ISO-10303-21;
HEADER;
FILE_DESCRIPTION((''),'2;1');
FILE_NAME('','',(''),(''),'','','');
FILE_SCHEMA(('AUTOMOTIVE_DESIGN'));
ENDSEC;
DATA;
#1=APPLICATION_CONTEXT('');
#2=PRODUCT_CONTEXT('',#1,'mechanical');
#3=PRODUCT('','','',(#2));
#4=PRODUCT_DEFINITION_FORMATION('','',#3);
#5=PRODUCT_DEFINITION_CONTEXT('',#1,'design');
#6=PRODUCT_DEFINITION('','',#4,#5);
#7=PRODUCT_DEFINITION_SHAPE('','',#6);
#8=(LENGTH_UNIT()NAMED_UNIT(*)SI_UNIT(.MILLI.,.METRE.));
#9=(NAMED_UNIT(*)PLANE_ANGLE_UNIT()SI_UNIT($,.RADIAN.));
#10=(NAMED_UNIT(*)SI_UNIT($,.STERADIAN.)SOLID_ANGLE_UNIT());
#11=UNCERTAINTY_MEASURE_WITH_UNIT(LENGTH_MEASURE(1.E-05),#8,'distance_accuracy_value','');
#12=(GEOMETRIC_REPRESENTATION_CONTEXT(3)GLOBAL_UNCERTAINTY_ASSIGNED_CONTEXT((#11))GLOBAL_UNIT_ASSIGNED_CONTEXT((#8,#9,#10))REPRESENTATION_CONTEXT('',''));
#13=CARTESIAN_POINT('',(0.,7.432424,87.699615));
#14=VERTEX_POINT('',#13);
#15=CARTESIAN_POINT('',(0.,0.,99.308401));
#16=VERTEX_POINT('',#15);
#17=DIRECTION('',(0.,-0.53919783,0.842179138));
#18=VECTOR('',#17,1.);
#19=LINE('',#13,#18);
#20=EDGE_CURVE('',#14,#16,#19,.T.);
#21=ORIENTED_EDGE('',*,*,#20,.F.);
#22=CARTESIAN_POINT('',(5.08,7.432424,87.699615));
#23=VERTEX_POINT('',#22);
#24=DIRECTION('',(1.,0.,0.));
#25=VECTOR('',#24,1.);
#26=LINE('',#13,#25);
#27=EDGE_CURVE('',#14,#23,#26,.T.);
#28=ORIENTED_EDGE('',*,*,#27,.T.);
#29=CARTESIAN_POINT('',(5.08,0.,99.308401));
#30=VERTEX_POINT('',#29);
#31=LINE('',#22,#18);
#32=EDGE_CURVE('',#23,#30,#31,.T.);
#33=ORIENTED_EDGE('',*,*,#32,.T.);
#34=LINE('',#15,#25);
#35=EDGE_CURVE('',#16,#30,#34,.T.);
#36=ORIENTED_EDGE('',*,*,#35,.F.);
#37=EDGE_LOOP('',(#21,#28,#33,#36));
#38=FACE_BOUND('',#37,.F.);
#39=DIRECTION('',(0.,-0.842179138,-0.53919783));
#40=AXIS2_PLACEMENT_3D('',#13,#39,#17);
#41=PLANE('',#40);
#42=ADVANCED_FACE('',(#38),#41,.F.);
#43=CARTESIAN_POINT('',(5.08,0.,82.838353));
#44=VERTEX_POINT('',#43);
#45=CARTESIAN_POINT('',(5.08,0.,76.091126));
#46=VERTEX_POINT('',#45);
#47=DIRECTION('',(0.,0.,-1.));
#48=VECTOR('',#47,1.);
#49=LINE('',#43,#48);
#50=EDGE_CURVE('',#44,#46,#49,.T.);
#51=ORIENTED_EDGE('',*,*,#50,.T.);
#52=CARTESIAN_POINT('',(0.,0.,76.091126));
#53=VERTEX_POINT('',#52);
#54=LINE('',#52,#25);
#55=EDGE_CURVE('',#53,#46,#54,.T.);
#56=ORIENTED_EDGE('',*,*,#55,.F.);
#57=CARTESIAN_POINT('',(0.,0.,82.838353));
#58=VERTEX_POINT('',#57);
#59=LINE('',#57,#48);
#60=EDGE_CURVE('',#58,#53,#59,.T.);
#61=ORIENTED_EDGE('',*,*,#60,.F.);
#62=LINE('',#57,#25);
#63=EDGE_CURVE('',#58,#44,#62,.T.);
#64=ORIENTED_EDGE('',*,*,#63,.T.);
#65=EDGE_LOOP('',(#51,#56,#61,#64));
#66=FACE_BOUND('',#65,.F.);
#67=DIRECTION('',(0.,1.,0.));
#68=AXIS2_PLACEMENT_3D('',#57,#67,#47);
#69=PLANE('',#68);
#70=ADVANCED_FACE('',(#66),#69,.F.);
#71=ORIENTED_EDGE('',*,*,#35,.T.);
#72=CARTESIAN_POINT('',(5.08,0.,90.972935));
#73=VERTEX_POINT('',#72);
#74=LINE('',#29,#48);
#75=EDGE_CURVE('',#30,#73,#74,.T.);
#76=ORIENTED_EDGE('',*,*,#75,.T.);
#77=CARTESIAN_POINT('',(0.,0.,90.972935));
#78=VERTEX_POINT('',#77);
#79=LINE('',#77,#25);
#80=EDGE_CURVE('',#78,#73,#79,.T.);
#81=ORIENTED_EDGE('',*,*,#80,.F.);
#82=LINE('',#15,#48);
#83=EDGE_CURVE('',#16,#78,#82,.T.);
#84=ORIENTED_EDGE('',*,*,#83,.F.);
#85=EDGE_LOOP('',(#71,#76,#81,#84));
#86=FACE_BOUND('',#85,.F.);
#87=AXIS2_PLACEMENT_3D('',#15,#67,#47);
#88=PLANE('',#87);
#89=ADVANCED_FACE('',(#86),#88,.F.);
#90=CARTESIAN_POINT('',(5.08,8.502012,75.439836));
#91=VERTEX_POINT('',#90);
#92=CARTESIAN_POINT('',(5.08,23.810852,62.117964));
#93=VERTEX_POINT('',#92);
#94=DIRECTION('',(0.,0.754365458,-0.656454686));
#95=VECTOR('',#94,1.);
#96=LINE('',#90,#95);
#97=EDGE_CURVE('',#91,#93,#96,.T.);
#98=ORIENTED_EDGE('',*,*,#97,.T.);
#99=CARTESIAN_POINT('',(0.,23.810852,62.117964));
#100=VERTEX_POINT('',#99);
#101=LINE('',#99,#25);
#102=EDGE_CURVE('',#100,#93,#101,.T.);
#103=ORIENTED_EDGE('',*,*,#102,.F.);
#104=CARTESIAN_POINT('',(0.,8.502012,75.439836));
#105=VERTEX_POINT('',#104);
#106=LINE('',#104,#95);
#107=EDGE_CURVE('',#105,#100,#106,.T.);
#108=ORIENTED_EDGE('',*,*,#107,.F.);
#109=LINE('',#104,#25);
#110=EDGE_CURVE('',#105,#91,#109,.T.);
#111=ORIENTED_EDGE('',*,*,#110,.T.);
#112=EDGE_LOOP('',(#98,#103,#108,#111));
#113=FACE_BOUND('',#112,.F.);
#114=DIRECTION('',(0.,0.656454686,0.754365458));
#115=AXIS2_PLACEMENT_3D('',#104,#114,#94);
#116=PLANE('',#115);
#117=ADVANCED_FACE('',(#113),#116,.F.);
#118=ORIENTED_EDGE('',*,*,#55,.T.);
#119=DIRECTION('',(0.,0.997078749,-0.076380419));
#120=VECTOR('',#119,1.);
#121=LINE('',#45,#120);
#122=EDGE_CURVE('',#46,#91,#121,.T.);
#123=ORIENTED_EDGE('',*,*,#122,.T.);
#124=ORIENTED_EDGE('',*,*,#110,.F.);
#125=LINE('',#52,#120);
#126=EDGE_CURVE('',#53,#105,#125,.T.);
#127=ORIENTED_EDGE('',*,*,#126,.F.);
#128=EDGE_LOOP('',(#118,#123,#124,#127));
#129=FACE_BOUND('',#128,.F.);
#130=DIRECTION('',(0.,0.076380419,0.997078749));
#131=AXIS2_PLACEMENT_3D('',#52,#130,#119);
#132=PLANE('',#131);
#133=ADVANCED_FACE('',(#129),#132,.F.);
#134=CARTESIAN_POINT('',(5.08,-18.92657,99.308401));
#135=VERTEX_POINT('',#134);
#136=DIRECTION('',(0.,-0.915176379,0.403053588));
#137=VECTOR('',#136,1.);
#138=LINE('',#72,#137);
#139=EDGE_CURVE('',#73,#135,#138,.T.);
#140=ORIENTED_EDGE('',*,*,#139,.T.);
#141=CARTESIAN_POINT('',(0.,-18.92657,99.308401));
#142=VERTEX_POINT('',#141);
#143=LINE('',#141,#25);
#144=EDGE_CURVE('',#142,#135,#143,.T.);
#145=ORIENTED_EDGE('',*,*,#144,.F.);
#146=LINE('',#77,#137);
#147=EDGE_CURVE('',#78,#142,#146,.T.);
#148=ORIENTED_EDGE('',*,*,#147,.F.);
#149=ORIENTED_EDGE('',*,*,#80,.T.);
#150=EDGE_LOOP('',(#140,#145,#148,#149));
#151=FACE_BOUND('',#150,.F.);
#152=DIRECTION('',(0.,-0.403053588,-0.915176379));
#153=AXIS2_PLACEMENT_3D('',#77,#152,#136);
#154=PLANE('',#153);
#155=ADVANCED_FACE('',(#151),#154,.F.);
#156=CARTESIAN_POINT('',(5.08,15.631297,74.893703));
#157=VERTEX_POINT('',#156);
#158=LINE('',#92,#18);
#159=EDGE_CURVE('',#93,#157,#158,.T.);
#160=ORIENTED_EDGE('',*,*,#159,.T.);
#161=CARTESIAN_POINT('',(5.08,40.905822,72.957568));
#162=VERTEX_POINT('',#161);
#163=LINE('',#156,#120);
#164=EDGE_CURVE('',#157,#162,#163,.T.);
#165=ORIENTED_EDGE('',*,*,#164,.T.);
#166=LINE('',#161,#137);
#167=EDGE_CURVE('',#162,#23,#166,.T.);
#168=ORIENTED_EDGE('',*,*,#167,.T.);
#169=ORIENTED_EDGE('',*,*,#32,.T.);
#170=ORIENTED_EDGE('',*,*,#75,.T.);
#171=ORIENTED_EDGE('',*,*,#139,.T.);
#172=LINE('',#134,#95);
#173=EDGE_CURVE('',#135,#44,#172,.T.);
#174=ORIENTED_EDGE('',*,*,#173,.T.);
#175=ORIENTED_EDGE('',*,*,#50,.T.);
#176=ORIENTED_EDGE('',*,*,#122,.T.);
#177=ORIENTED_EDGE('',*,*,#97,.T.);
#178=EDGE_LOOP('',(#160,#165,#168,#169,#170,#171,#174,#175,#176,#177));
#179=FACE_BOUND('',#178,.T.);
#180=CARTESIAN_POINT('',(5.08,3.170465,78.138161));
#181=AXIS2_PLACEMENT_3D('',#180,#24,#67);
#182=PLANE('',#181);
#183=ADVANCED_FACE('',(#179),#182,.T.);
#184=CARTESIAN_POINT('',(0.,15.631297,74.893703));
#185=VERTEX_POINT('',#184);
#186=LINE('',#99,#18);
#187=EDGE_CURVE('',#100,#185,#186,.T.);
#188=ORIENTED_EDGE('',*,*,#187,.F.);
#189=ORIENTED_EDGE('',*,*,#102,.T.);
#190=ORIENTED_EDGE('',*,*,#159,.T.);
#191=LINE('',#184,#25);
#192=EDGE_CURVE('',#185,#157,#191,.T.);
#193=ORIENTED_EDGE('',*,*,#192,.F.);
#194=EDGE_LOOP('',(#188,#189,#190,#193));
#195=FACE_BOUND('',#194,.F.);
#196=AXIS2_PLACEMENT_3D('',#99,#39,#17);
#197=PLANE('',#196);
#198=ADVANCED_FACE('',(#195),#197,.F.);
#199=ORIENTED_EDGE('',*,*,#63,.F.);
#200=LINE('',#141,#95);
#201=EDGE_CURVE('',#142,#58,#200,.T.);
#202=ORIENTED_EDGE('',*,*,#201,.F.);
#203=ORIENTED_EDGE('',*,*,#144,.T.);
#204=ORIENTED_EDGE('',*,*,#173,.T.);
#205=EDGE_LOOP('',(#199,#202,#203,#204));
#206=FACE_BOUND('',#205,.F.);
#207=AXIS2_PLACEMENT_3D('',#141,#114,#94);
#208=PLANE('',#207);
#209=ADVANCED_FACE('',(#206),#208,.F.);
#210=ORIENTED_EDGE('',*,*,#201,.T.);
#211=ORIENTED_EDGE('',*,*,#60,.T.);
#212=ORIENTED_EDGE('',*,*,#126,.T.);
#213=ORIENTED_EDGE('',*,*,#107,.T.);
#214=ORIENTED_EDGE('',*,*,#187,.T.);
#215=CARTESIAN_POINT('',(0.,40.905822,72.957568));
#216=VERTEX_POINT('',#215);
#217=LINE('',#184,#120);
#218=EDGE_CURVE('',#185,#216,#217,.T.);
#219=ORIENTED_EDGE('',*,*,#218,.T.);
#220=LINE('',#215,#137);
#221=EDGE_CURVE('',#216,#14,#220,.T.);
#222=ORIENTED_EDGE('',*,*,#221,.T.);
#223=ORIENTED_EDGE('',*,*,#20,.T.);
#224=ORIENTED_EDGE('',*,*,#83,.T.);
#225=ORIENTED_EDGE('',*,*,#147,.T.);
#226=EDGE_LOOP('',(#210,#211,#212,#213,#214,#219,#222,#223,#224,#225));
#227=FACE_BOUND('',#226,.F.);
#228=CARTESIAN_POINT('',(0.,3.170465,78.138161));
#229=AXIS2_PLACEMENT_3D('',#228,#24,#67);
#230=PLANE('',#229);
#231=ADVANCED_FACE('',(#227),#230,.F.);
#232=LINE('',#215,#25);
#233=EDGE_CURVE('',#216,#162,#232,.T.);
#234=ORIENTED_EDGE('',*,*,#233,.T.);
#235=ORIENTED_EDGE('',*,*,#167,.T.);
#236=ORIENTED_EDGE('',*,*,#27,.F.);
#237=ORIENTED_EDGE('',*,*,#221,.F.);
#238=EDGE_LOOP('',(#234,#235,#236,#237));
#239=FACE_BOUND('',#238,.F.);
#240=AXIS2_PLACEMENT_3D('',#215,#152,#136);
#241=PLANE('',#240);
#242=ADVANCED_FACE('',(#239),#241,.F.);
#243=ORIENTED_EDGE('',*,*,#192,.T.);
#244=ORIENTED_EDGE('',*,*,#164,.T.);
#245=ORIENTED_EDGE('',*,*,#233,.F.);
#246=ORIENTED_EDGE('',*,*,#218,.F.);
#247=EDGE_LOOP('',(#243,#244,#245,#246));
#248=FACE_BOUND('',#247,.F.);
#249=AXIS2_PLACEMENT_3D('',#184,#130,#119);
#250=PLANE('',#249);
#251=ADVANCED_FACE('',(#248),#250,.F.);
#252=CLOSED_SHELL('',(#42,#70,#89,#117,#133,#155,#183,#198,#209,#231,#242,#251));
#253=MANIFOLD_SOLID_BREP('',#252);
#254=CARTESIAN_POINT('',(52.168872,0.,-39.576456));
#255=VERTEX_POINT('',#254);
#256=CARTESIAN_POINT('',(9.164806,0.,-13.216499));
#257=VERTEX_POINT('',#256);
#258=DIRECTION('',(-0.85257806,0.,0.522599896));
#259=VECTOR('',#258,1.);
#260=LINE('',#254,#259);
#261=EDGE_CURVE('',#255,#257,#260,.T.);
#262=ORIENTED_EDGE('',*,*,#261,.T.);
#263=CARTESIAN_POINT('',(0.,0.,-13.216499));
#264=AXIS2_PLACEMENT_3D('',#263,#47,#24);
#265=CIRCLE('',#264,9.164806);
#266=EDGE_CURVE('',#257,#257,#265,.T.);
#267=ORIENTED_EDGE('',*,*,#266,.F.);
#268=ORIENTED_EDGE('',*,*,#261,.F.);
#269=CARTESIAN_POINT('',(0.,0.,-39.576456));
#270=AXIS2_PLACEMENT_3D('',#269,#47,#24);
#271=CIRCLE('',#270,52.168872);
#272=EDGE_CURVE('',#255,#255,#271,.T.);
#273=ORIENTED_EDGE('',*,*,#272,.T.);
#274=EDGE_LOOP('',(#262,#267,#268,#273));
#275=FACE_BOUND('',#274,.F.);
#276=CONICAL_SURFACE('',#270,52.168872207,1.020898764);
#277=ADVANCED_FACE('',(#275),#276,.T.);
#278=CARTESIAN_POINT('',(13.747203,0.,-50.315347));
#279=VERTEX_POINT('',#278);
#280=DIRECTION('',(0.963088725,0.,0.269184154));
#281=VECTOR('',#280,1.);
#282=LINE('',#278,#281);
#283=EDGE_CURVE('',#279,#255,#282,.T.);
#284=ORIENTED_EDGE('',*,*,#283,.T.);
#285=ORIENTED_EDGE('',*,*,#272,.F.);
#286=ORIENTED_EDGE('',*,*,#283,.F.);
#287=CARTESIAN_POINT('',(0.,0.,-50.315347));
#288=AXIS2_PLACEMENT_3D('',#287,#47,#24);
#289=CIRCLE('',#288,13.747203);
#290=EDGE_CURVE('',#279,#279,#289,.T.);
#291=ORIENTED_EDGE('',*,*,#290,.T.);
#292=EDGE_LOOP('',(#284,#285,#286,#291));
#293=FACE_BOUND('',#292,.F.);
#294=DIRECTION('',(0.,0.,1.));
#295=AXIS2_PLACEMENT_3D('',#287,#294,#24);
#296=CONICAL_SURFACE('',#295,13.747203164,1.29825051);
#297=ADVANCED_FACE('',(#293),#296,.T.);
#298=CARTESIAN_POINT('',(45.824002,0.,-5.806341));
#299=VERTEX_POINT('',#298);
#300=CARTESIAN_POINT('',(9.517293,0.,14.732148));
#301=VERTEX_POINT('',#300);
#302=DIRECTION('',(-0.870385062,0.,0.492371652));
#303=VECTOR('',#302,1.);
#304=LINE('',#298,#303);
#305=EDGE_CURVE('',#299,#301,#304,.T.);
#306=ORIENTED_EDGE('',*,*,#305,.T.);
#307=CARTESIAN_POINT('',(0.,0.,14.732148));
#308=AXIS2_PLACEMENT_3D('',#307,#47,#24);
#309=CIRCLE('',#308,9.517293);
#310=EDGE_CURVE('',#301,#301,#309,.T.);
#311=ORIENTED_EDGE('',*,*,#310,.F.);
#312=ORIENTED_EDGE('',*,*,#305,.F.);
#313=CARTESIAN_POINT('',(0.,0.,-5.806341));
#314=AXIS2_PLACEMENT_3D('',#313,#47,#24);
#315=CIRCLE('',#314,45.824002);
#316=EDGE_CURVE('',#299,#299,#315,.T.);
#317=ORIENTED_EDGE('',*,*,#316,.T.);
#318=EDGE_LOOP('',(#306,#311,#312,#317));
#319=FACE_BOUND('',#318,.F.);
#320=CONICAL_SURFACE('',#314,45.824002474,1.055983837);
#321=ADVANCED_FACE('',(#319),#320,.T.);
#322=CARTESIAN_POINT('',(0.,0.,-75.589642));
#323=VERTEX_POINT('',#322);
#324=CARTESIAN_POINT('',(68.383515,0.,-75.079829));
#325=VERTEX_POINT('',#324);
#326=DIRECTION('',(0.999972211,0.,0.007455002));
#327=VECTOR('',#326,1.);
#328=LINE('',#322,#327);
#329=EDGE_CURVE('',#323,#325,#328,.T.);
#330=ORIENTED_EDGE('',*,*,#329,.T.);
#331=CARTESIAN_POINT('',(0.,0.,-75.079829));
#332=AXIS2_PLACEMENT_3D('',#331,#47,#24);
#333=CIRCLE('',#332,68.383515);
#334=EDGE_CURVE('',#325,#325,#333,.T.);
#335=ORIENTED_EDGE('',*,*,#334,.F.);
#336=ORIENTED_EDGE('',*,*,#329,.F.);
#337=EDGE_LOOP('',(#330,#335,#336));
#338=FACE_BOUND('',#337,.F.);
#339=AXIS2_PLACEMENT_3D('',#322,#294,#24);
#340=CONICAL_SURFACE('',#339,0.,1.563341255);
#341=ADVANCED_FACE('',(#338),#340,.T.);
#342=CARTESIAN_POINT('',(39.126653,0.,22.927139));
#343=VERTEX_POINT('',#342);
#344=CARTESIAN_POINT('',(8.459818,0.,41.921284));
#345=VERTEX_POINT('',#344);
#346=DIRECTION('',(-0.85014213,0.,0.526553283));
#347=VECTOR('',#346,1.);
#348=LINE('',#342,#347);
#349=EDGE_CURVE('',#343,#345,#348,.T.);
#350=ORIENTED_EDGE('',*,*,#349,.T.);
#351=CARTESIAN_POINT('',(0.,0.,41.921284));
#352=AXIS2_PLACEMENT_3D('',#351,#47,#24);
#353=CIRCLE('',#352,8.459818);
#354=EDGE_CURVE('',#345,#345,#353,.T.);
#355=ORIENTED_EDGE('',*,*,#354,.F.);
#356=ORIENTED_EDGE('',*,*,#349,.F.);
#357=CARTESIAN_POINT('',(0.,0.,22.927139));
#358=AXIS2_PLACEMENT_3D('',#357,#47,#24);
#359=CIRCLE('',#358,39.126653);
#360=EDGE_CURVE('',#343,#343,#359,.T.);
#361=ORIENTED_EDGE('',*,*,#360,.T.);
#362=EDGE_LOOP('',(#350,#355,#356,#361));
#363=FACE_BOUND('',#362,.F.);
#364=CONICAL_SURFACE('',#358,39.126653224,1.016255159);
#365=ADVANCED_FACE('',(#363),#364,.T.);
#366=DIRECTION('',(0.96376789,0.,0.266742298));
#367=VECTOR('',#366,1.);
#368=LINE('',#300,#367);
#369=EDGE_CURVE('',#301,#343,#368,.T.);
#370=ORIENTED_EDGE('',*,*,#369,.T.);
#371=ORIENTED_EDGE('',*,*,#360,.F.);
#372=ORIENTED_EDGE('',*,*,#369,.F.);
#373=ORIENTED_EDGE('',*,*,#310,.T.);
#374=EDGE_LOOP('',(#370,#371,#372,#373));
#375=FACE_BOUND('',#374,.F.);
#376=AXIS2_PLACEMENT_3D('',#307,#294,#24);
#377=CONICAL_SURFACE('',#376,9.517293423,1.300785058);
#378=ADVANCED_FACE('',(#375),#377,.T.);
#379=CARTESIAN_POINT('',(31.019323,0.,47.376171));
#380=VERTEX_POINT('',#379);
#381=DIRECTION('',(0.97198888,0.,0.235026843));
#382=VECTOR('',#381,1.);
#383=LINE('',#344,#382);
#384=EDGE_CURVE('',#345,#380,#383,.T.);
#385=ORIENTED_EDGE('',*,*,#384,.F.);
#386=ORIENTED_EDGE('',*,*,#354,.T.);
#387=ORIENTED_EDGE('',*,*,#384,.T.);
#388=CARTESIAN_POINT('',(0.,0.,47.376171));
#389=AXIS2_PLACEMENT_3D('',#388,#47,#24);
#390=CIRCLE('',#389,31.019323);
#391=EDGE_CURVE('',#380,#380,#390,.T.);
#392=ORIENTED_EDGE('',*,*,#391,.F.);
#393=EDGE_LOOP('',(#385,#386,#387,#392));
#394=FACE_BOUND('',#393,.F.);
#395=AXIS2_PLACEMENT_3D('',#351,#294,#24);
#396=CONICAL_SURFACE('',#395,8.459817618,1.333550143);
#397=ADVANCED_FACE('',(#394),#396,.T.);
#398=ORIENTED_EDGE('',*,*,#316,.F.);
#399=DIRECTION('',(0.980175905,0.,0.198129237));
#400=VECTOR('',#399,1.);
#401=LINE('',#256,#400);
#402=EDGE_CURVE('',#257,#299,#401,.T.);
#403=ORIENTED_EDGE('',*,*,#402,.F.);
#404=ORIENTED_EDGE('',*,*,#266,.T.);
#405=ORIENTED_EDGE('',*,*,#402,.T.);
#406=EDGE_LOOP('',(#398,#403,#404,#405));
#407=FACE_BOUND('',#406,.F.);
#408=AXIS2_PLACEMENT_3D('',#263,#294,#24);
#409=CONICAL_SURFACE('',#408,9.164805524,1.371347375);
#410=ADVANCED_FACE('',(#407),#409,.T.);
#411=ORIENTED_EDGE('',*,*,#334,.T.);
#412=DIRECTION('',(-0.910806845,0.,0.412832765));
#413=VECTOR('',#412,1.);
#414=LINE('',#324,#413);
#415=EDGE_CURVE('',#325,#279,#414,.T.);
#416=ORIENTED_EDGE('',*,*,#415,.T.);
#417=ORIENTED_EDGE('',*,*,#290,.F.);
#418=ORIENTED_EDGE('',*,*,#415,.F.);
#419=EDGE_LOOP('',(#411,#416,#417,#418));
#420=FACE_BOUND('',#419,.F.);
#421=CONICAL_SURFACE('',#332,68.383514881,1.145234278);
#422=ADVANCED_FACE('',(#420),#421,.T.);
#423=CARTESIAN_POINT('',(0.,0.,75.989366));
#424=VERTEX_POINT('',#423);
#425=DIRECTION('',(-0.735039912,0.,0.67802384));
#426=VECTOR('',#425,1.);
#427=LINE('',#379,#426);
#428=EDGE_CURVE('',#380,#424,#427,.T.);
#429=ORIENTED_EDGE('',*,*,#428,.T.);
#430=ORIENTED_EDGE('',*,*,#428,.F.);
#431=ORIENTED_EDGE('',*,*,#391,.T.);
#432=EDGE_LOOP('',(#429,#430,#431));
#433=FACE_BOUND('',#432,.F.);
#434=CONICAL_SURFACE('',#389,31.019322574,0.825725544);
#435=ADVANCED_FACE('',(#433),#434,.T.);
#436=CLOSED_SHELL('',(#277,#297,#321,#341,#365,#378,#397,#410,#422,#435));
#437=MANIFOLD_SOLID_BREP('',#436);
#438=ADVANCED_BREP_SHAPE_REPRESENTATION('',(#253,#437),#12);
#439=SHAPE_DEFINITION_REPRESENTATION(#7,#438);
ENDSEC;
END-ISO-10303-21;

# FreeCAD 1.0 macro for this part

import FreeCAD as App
import Part
import Sketcher
from FreeCAD import Vector
Q = App.Units.Quantity


def add_polygon(sketch, points):
    """Adds a closed chain of lines whose ends are joined by coincident constraints."""
    first, n = sketch.GeometryCount, len(points)
    for a, b in zip(points, points[1:] + points[:1]):
        sketch.addGeometry(Part.LineSegment(App.Vector(*a, 0), App.Vector(*b, 0)), False)
    for i in range(n):
        sketch.addConstraint(Sketcher.Constraint("Coincident", first + i, 2, first + (i + 1) % n, 1))

doc = App.newDocument("Part")
body = doc.addObject("PartDesign::Body", "Body")

sketch1 = body.newObject("Sketcher::SketchObject", "Sketch")
sketch1.AttachmentSupport = (doc.getObject("XZ_Plane"), [""])
sketch1.MapMode = "FlatFace"
add_polygon(sketch1, [(31, 47), (0, 76), (0, -76), (68, -75), (14, -50), (52, -40), (9, -13), (46, -6), (10, 15), (39, 23), (8, 42)])
sketch1.addConstraint([
    Sketcher.Constraint("Vertical", 1),
    Sketcher.Constraint("PointOnObject", 0, 2, -2),
    Sketcher.Constraint("Distance", 8, Q("30.722501 mm")),
    Sketcher.Constraint("Distance", 9, Q("36.072598 mm")),
    Sketcher.Constraint("DistanceY", 5, 2, -1, 1, Q("13.216499 mm")),
    Sketcher.Constraint("DistanceX", 3, 2, 6, 2, Q("32.076799 mm")),
    Sketcher.Constraint("DistanceY", 1, 2, 6, 2, Q("69.783301 mm")),
    Sketcher.Constraint("Distance", 0, Q("42.200868 mm")),
    Sketcher.Constraint("Distance", 6, Q("37.400631 mm")),
    Sketcher.Constraint("DistanceY", 1, 2, 1, 1, Q("151.579008 mm")),
    Sketcher.Constraint("DistanceY", 1, 2, -1, 1, Q("75.589642 mm")),
    Sketcher.Constraint("DistanceY", 2, 2, -1, 1, Q("75.079829 mm")),
    Sketcher.Constraint("DistanceY", -1, 1, 7, 2, Q("14.732148 mm")),
    Sketcher.Constraint("DistanceY", -1, 1, 8, 2, Q("22.927139 mm")),
    Sketcher.Constraint("DistanceY", -1, 1, 10, 2, Q("47.376171 mm")),
    Sketcher.Constraint("DistanceX", 3, 2, 2, 2, Q("54.636312 mm")),
    Sketcher.Constraint("DistanceY", 2, 2, 3, 2, Q("24.764482 mm")),
    Sketcher.Constraint("DistanceX", 3, 2, 4, 2, Q("38.421669 mm")),
    Sketcher.Constraint("DistanceY", 3, 2, 4, 2, Q("10.738891 mm")),
    Sketcher.Constraint("DistanceX", 7, 2, 6, 2, Q("36.306709 mm")),
    Sketcher.Constraint("DistanceY", 9, 2, 0, 2, Q("34.068082 mm")),
    Sketcher.Constraint("DistanceX", 10, 2, 8, 2, Q("8.107331 mm")),
])
revolution = body.newObject("PartDesign::Revolution", "Revolution")
revolution.Profile = sketch1
revolution.ReferenceAxis = (sketch1, ["V_Axis"])
revolution.Angle = 360
body2 = doc.addObject("PartDesign::Body", "Body001")

sketch2 = body2.newObject("Sketcher::SketchObject", "Sketch001")
sketch2.AttachmentSupport = (doc.getObject("YZ_Plane001"), [""])
sketch2.MapMode = "FlatFace"
add_polygon(sketch2, [(0, 83), (0, 76), (9, 75), (24, 62), (16, 75), (41, 73), (7, 88), (0, 99), (0, 91), (-19, 99)])
sketch2.addConstraint([
    Sketcher.Constraint("Vertical", 0),
    Sketcher.Constraint("Vertical", 7),
    Sketcher.Constraint("PointOnObject", 0, 2, -2),
    Sketcher.Constraint("PointOnObject", 6, 2, -2),
    Sketcher.Constraint("Parallel", 1, 4),
    Sketcher.Constraint("Parallel", 3, 6),
    Sketcher.Constraint("Parallel", 5, 8),
    Sketcher.Constraint("Parallel", 2, 9),
    Sketcher.Constraint("Horizontal", 6, 2, 8, 2),
    Sketcher.Constraint("Distance", 5, Q("36.575898 mm")),
    Sketcher.Constraint("DistanceY", -1, 1, 6, 2, Q("99.308401 mm")),
    Sketcher.Constraint("DistanceX", 5, 2, 4, 2, Q("33.473398 mm")),
    Sketcher.Constraint("DistanceY", 3, 2, 6, 2, Q("24.414699 mm")),
    Sketcher.Constraint("DistanceY", 1, 2, 7, 2, Q("15.533099 mm")),
    Sketcher.Constraint("Distance", 1, Q("8.526921 mm")),
    Sketcher.Constraint("Distance", 3, Q("15.169859 mm")),
    Sketcher.Constraint("Distance", 8, Q("20.68079 mm")),
    Sketcher.Constraint("Distance", 9, Q("25.089391 mm")),
    Sketcher.Constraint("DistanceY", 0, 2, 0, 1, Q("6.747227 mm")),
    Sketcher.Constraint("DistanceX", 1, 2, 2, 2, Q("15.30884 mm")),
])
pad1 = body2.newObject("PartDesign::Pad", "Pad")
pad1.Profile = sketch2
pad1.Length = Q("0.2 in")

doc.recompute()
